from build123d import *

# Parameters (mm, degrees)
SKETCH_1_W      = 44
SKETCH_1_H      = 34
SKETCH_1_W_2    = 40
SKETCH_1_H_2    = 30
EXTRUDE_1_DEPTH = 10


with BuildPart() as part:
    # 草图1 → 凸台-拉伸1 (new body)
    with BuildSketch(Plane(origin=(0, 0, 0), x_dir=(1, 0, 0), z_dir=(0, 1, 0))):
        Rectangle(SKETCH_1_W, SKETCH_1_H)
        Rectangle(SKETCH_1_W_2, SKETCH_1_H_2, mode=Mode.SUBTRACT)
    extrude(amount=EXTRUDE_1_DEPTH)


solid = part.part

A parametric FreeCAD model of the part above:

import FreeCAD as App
import Part
import Sketcher


def add_polygon(sketch, points):
    """Adds a closed chain of lines whose ends are joined by coincident constraints."""
    first, n = sketch.GeometryCount, len(points)
    for a, b in zip(points, points[1:] + points[:1]):
        sketch.addGeometry(Part.LineSegment(App.Vector(*a, 0), App.Vector(*b, 0)), False)
    for i in range(n):
        sketch.addConstraint(Sketcher.Constraint("Coincident", first + i, 2, first + (i + 1) % n, 1))

doc = App.newDocument("Part")
body = doc.addObject("PartDesign::Body", "Body")

# Sketch on XZ plane
sketch1 = body.newObject("Sketcher::SketchObject", "Sketch")
sketch1.AttachmentSupport = (doc.getObject("XZ_Plane"), [""])
sketch1.MapMode = "FlatFace"
add_polygon(sketch1, [(-22, -17), (-22, 17), (22, 17), (22, -17)])  # lines 0-3
add_polygon(sketch1, [(20, 15), (-20, 15), (-20, -15), (20, -15)])  # lines 4-7
sketch1.addConstraint([
    Sketcher.Constraint("Vertical", 0),
    Sketcher.Constraint("Horizontal", 1),
    Sketcher.Constraint("Vertical", 2),
    Sketcher.Constraint("Horizontal", 3),
    Sketcher.Constraint("Horizontal", 4),
    Sketcher.Constraint("Vertical", 5),
    Sketcher.Constraint("Horizontal", 6),
    Sketcher.Constraint("Vertical", 7),
    Sketcher.Constraint("Symmetric", 0, 2, 2, 2, -1, 1),
    Sketcher.Constraint("Symmetric", 4, 2, 6, 2, -1, 1),
    Sketcher.Constraint("DistanceX", 1, 1, 1, 2, 44.0),
    Sketcher.Constraint("DistanceX", 4, 2, 4, 1, 40.0),
    Sketcher.Constraint("DistanceY", 0, 1, 0, 2, 34.0),
    Sketcher.Constraint("DistanceY", 5, 2, 5, 1, 30.0),
])
pad1 = body.newObject("PartDesign::Pad", "Pad")
pad1.Profile = sketch1
pad1.Length = 10
pad1.Reversed = True

doc.recompute()
